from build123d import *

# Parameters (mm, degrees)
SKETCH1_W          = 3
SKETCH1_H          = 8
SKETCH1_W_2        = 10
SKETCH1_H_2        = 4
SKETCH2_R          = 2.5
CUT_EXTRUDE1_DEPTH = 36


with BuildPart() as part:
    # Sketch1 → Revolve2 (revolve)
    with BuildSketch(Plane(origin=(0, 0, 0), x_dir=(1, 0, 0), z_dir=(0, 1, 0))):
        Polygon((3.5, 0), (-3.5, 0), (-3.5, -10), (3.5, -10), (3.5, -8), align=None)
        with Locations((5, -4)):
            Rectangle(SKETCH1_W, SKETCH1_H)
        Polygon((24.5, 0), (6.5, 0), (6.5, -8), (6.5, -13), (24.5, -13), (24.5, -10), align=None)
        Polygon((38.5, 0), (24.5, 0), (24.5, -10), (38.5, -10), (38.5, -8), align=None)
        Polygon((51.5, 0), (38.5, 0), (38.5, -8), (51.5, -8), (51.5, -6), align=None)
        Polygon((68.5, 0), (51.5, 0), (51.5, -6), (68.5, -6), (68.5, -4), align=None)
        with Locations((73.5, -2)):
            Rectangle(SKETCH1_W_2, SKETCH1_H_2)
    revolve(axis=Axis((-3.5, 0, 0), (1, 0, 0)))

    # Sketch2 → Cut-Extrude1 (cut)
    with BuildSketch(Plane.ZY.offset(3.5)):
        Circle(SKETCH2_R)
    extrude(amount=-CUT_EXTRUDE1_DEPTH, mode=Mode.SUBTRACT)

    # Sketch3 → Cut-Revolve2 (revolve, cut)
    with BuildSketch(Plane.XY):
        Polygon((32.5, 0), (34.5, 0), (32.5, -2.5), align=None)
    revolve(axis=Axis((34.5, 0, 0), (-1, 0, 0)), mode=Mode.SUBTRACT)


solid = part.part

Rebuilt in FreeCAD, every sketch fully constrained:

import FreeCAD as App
import Part
import Sketcher
from FreeCAD import Vector

doc = App.newDocument("Part")
body = doc.addObject("PartDesign::Body", "Body")

sketch1 = body.newObject("Sketcher::SketchObject", "Sketch")
sketch1.AttachmentSupport = (doc.getObject("XZ_Plane"), [""])
sketch1.MapMode = "FlatFace"
sketch1.addGeometry([
    Part.LineSegment(Vector(-3.5, 0, 0), Vector(-3.5, 10, 0)),
    Part.LineSegment(Vector(-3.5, 10, 0), Vector(3.5, 10, 0)),
    Part.LineSegment(Vector(3.5, 10, 0), Vector(3.5, 8, 0)),
    Part.LineSegment(Vector(3.5, 8, 0), Vector(6.5, 8, 0)),
    Part.LineSegment(Vector(6.5, 8, 0), Vector(6.5, 13, 0)),
    Part.LineSegment(Vector(6.5, 13, 0), Vector(24.5, 13, 0)),
    Part.LineSegment(Vector(24.5, 13, 0), Vector(24.5, 10, 0)),
    Part.LineSegment(Vector(24.5, 10, 0), Vector(38.5, 10, 0)),
    Part.LineSegment(Vector(38.5, 10, 0), Vector(38.5, 8, 0)),
    Part.LineSegment(Vector(38.5, 8, 0), Vector(51.5, 8, 0)),
    Part.LineSegment(Vector(51.5, 8, 0), Vector(51.5, 6, 0)),
    Part.LineSegment(Vector(51.5, 6, 0), Vector(68.5, 6, 0)),
    Part.LineSegment(Vector(68.5, 6, 0), Vector(68.5, 4, 0)),
    Part.LineSegment(Vector(68.5, 4, 0), Vector(78.5, 4, 0)),
    Part.LineSegment(Vector(78.5, 4, 0), Vector(78.5, 0, 0)),
    Part.LineSegment(Vector(78.5, 0, 0), Vector(-3.5, 0, 0)),
], False)
sketch1.addConstraint([
    Sketcher.Constraint("Coincident", 0, 2, 1, 1),
    Sketcher.Constraint("Coincident", 1, 2, 2, 1),
    Sketcher.Constraint("Coincident", 2, 2, 3, 1),
    Sketcher.Constraint("Coincident", 3, 2, 4, 1),
    Sketcher.Constraint("Coincident", 4, 2, 5, 1),
    Sketcher.Constraint("Coincident", 5, 2, 6, 1),
    Sketcher.Constraint("Coincident", 6, 2, 7, 1),
    Sketcher.Constraint("Coincident", 7, 2, 8, 1),
    Sketcher.Constraint("Coincident", 8, 2, 9, 1),
    Sketcher.Constraint("Coincident", 9, 2, 10, 1),
    Sketcher.Constraint("Coincident", 10, 2, 11, 1),
    Sketcher.Constraint("Coincident", 11, 2, 12, 1),
    Sketcher.Constraint("Coincident", 12, 2, 13, 1),
    Sketcher.Constraint("Coincident", 13, 2, 14, 1),
    Sketcher.Constraint("Coincident", 14, 2, 15, 1),
    Sketcher.Constraint("Coincident", 15, 2, 0, 1),
    Sketcher.Constraint("Vertical", 0),
    Sketcher.Constraint("Horizontal", 1),
    Sketcher.Constraint("Vertical", 2),
    Sketcher.Constraint("Horizontal", 3),
    Sketcher.Constraint("Vertical", 4),
    Sketcher.Constraint("Horizontal", 5),
    Sketcher.Constraint("Vertical", 6),
    Sketcher.Constraint("Horizontal", 7),
    Sketcher.Constraint("Vertical", 8),
    Sketcher.Constraint("Horizontal", 9),
    Sketcher.Constraint("Vertical", 10),
    Sketcher.Constraint("Horizontal", 11),
    Sketcher.Constraint("Vertical", 12),
    Sketcher.Constraint("Horizontal", 13),
    Sketcher.Constraint("Vertical", 14),
    Sketcher.Constraint("Horizontal", 15),
    Sketcher.Constraint("PointOnObject", 14, 2, -1),
    Sketcher.Constraint("Horizontal", 1, 2, 6, 2),
    Sketcher.Constraint("Horizontal", 3, 2, 8, 2),
    Sketcher.Constraint("Equal", 13, 0),
    Sketcher.Constraint("Equal", 3, 6),
    Sketcher.Constraint("Equal", 8, 10),
    Sketcher.Constraint("Equal", 10, 12),
    Sketcher.Constraint("DistanceX", 1, 1, 1, 2, 7.0),
    Sketcher.Constraint("DistanceX", 3, 1, 3, 2, 3.0),
    Sketcher.Constraint("DistanceX", 5, 1, 5, 2, 18.0),
    Sketcher.Constraint("DistanceX", 7, 1, 7, 2, 14.0),
    Sketcher.Constraint("DistanceX", 9, 1, 9, 2, 13.0),
    Sketcher.Constraint("DistanceX", 11, 1, 11, 2, 17.0),
    Sketcher.Constraint("DistanceX", 13, 1, 13, 2, 10.0),
    Sketcher.Constraint("DistanceY", 2, 2, 2, 1, 2.0),
    Sketcher.Constraint("DistanceX", 0, 2, -1, 1, 3.5),
])
revolution = body.newObject("PartDesign::Revolution", "Revolution")
revolution.Profile = sketch1
revolution.ReferenceAxis = (sketch1, ["H_Axis"])
revolution.Angle = 360

sketch2 = body.newObject("Sketcher::SketchObject", "Sketch001")
sketch2.AttachmentSupport = (doc.getObject("YZ_Plane"), [""])
sketch2.MapMode = "FlatFace"
sketch2.AttachmentOffset = App.Placement(Vector(0, 0, -3.5), App.Rotation())
sketch2.addGeometry(Part.Circle(Vector(0, 0, 0), Vector(0, 0, 1), 2.5), False)
sketch2.addConstraint([
    Sketcher.Constraint("Coincident", 0, 3, -1, 1),
    Sketcher.Constraint("Diameter", 0, 5.0),
])
pocket1 = body.newObject("PartDesign::Pocket", "Pocket")
pocket1.Profile = sketch2
pocket1.Length = 36
pocket1.Reversed = True

sketch3 = body.newObject("Sketcher::SketchObject", "Sketch002")
sketch3.AttachmentSupport = (doc.getObject("XY_Plane"), [""])
sketch3.MapMode = "FlatFace"
sketch3.addGeometry([
    Part.LineSegment(Vector(34.5, 0, 0), Vector(32.5, 0, 0)),
    Part.LineSegment(Vector(32.5, 0, 0), Vector(32.5, -2.5, 0)),
    Part.LineSegment(Vector(32.5, -2.5, 0), Vector(34.5, 0, 0)),
], False)
sketch3.addConstraint([
    Sketcher.Constraint("Coincident", 0, 2, 1, 1),
    Sketcher.Constraint("Coincident", 1, 2, 2, 1),
    Sketcher.Constraint("Coincident", 2, 2, 0, 1),
    Sketcher.Constraint("Horizontal", 0),
    Sketcher.Constraint("Vertical", 1),
    Sketcher.Constraint("PointOnObject", 0, 2, -1),
    Sketcher.Constraint("DistanceX", 0, 2, 0, 1, 2.0),
    Sketcher.Constraint("DistanceY", 1, 2, 1, 1, 2.5),
    Sketcher.Constraint("DistanceX", -1, 1, 0, 2, 32.5),
])
groove = body.newObject("PartDesign::Groove", "Groove")
groove.Profile = sketch3
groove.ReferenceAxis = (sketch3, ["H_Axis"])
groove.Angle = 360

doc.recompute()
